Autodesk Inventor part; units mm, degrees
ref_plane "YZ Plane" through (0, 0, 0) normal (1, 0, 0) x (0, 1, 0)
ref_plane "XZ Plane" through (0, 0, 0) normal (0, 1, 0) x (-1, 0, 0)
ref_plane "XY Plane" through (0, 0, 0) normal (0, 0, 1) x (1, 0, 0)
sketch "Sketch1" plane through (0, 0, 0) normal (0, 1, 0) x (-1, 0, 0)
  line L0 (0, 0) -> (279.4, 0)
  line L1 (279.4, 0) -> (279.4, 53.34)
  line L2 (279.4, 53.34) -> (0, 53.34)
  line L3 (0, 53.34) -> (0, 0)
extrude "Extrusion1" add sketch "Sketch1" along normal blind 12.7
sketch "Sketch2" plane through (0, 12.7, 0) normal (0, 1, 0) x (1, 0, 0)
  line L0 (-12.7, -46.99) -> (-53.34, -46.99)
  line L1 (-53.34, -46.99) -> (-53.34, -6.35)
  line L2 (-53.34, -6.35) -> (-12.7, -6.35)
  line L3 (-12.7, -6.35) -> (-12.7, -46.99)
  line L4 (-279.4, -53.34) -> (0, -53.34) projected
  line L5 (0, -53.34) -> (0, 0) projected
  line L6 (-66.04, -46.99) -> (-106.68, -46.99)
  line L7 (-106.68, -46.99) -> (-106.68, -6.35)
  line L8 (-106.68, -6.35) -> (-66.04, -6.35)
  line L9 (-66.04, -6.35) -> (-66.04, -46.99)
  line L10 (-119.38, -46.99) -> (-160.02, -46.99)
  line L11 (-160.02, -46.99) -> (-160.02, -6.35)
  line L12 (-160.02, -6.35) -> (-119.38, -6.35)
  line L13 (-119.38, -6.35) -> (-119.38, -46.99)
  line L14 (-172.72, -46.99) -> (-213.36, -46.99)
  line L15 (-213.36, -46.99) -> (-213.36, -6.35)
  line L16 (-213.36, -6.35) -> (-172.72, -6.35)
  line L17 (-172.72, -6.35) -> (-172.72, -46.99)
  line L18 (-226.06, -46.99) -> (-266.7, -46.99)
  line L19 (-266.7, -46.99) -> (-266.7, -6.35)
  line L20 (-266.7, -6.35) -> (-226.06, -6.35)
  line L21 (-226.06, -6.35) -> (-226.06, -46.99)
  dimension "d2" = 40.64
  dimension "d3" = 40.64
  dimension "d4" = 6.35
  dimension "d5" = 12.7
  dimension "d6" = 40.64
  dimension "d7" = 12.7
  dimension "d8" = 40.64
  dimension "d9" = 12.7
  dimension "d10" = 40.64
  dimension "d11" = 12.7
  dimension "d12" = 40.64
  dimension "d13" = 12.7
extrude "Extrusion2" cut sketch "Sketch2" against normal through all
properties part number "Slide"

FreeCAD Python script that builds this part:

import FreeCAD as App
import Part
import Sketcher
Q = App.Units.Quantity


def add_polygon(sketch, points):
    """Adds a closed chain of lines whose ends are joined by coincident constraints."""
    first, n = sketch.GeometryCount, len(points)
    for a, b in zip(points, points[1:] + points[:1]):
        sketch.addGeometry(Part.LineSegment(App.Vector(*a, 0), App.Vector(*b, 0)), False)
    for i in range(n):
        sketch.addConstraint(Sketcher.Constraint("Coincident", first + i, 2, first + (i + 1) % n, 1))

doc = App.newDocument("Part")
body = doc.addObject("PartDesign::Body", "Body")

# Sketch on XZ plane
sketch1 = doc.addObject("Sketcher::SketchObject", "Sketch")
body.addObject(sketch1)
sketch1.AttachmentSupport = (doc.XZ_Plane, [""])
sketch1.MapMode = "FlatFace"
add_polygon(sketch1, [(0, 53.34), (0, 0), (-279.4, 0), (-279.4, 53.34)])  # lines 0-3
sketch1.addConstraint(Sketcher.Constraint("Vertical", 0))
sketch1.addConstraint(Sketcher.Constraint("Horizontal", 1))
sketch1.addConstraint(Sketcher.Constraint("Vertical", 2))
sketch1.addConstraint(Sketcher.Constraint("Horizontal", 3))
sketch1.addConstraint(Sketcher.Constraint("Coincident", 0, 2, -1, 1))
sketch1.addConstraint(Sketcher.Constraint("DistanceX", 1, 2, 1, 1, Q("11 in")))
sketch1.addConstraint(Sketcher.Constraint("DistanceY", 0, 2, 0, 1, Q("2.1 in")))
pad1 = doc.addObject("PartDesign::Pad", "Pad")
body.addObject(pad1)
pad1.Profile = sketch1
pad1.Length = Q("0.5 in")
pad1.Reversed = True

# Sketch on XZ plane
sketch2 = doc.addObject("Sketcher::SketchObject", "Sketch001")
body.addObject(sketch2)
sketch2.AttachmentSupport = (doc.XZ_Plane, [""])
sketch2.MapMode = "FlatFace"
sketch2.AttachmentOffset = App.Placement(App.Vector(0, 0, -0.5 * 25.4), App.Rotation())
add_polygon(sketch2, [(-53.34, 46.99), (-12.7, 46.99), (-12.7, 6.35), (-53.34, 6.35)])  # lines 0-3
add_polygon(sketch2, [(-106.68, 46.99), (-66.04, 46.99), (-66.04, 6.35), (-106.68, 6.35)])  # lines 4-7
add_polygon(sketch2, [(-160.02, 46.99), (-119.38, 46.99), (-119.38, 6.35), (-160.02, 6.35)])  # lines 8-11
add_polygon(sketch2, [(-213.36, 46.99), (-172.72, 46.99), (-172.72, 6.35), (-213.36, 6.35)])  # lines 12-15
add_polygon(sketch2, [(-266.7, 46.99), (-226.06, 46.99), (-226.06, 6.35), (-266.7, 6.35)])  # lines 16-19
sketch2.addConstraint(Sketcher.Constraint("Horizontal", 0))
sketch2.addConstraint(Sketcher.Constraint("Vertical", 1))
sketch2.addConstraint(Sketcher.Constraint("Horizontal", 2))
sketch2.addConstraint(Sketcher.Constraint("Vertical", 3))
sketch2.addConstraint(Sketcher.Constraint("Horizontal", 4))
sketch2.addConstraint(Sketcher.Constraint("Vertical", 5))
sketch2.addConstraint(Sketcher.Constraint("Horizontal", 6))
sketch2.addConstraint(Sketcher.Constraint("Vertical", 7))
sketch2.addConstraint(Sketcher.Constraint("Horizontal", 8))
sketch2.addConstraint(Sketcher.Constraint("Vertical", 9))
sketch2.addConstraint(Sketcher.Constraint("Horizontal", 10))
sketch2.addConstraint(Sketcher.Constraint("Vertical", 11))
sketch2.addConstraint(Sketcher.Constraint("Horizontal", 12))
sketch2.addConstraint(Sketcher.Constraint("Vertical", 13))
sketch2.addConstraint(Sketcher.Constraint("Horizontal", 14))
sketch2.addConstraint(Sketcher.Constraint("Vertical", 15))
sketch2.addConstraint(Sketcher.Constraint("Horizontal", 16))
sketch2.addConstraint(Sketcher.Constraint("Vertical", 17))
sketch2.addConstraint(Sketcher.Constraint("Horizontal", 18))
sketch2.addConstraint(Sketcher.Constraint("Vertical", 19))
sketch2.addConstraint(Sketcher.Constraint("Horizontal", 3, 2, 4, 2))
sketch2.addConstraint(Sketcher.Constraint("Horizontal", 2, 2, 5, 2))
sketch2.addConstraint(Sketcher.Constraint("Horizontal", 7, 2, 8, 2))
sketch2.addConstraint(Sketcher.Constraint("Horizontal", 6, 2, 9, 2))
sketch2.addConstraint(Sketcher.Constraint("Horizontal", 11, 2, 12, 2))
sketch2.addConstraint(Sketcher.Constraint("Horizontal", 10, 2, 13, 2))
sketch2.addConstraint(Sketcher.Constraint("Horizontal", 15, 2, 16, 2))
sketch2.addConstraint(Sketcher.Constraint("Horizontal", 14, 2, 17, 2))
sketch2.addConstraint(Sketcher.Constraint("Equal", 2, 4))
sketch2.addConstraint(Sketcher.Constraint("Equal", 6, 8))
sketch2.addConstraint(Sketcher.Constraint("Equal", 10, 12))
sketch2.addConstraint(Sketcher.Constraint("Equal", 14, 16))
sketch2.addConstraint(Sketcher.Constraint("Equal", 18, 1))
sketch2.addConstraint(Sketcher.Constraint("DistanceX", 0, 1, 0, 2, Q("1.6 in")))
sketch2.addConstraint(Sketcher.Constraint("DistanceX", 0, 2, -1, 1, Q("0.5 in")))
sketch2.addConstraint(Sketcher.Constraint("DistanceX", 4, 2, 3, 2, Q("0.5 in")))
sketch2.addConstraint(Sketcher.Constraint("DistanceX", 8, 2, 7, 2, Q("0.5 in")))
sketch2.addConstraint(Sketcher.Constraint("DistanceX", 12, 2, 11, 2, Q("0.5 in")))
sketch2.addConstraint(Sketcher.Constraint("DistanceX", 16, 2, 15, 2, Q("0.5 in")))
sketch2.addConstraint(Sketcher.Constraint("DistanceY", -1, 1, 1, 2, Q("0.25 in")))
pocket1 = doc.addObject("PartDesign::Pocket", "Pocket")
body.addObject(pocket1)
pocket1.Profile = sketch2
pocket1.Type = "ThroughAll"
pocket1.Reversed = True

doc.recompute()
